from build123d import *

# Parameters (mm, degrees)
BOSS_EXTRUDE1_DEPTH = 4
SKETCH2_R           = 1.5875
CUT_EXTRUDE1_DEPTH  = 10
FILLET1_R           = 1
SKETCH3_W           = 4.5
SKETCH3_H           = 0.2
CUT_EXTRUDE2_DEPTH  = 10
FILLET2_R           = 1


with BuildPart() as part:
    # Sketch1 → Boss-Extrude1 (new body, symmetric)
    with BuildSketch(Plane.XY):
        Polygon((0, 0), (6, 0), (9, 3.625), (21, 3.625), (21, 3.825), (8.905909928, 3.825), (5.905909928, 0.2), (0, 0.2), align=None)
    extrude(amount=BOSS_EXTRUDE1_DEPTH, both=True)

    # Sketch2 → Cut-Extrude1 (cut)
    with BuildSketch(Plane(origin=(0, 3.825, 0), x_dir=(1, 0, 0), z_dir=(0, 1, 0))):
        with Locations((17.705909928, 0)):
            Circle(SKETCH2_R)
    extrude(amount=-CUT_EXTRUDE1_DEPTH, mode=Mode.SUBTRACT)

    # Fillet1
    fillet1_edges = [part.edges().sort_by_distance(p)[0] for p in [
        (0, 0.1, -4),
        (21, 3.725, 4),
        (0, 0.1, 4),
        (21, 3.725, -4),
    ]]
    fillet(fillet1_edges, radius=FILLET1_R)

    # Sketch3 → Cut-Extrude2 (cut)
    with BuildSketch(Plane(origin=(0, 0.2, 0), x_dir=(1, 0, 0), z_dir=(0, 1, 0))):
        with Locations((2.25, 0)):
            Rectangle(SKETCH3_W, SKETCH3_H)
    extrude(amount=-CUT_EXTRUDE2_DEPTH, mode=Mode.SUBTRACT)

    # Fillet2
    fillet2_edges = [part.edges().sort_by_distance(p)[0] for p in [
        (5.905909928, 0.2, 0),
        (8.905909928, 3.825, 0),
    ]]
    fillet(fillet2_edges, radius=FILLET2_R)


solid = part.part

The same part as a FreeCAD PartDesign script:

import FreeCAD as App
import Part
import Sketcher
Q = App.Units.Quantity


def edges_at(feature, points):
    """Names of the edges that pass closest to the given points."""
    edges = feature.Shape.Edges
    near = lambda p: min(range(len(edges)), key=lambda i: edges[i].distToShape(Part.Vertex(*p))[0])
    return sorted({f"Edge{near(p) + 1}" for p in points})


def add_polygon(sketch, points):
    """Adds a closed chain of lines whose ends are joined by coincident constraints."""
    first, n = sketch.GeometryCount, len(points)
    for a, b in zip(points, points[1:] + points[:1]):
        sketch.addGeometry(Part.LineSegment(App.Vector(*a, 0), App.Vector(*b, 0)), False)
    for i in range(n):
        sketch.addConstraint(Sketcher.Constraint("Coincident", first + i, 2, first + (i + 1) % n, 1))

doc = App.newDocument("Part")
body = doc.addObject("PartDesign::Body", "Body")

# Sketch on XY plane
sketch1 = doc.addObject("Sketcher::SketchObject", "Sketch")
body.addObject(sketch1)
sketch1.AttachmentSupport = (doc.XY_Plane, [""])
sketch1.MapMode = "FlatFace"
add_polygon(sketch1, [(0, 0), (6, 0), (9, 3.62), (21, 3.62), (21, 3.83), (8.91, 3.83), (5.91, 0.2), (0, 0.2)])  # lines 0-7
sketch1.addConstraint([
    Sketcher.Constraint("Horizontal", 0),
    Sketcher.Constraint("Horizontal", 2),
    Sketcher.Constraint("Vertical", 3),
    Sketcher.Constraint("Horizontal", 4),
    Sketcher.Constraint("Horizontal", 6),
    Sketcher.Constraint("Vertical", 7),
    Sketcher.Constraint("Coincident", 7, 2, -1, 1),
    Sketcher.Constraint("Parallel", 1, 5),
    Sketcher.Constraint("Equal", 3, 7),
    Sketcher.Constraint("DistanceX", 0, 1, 0, 2, Q("6 mm")),
    Sketcher.Constraint("DistanceX", 2, 1, 2, 2, Q("12 mm")),
    Sketcher.Constraint("DistanceY", 3, 1, 3, 2, Q("0.2 mm")),
    Sketcher.Constraint("DistanceX", -1, 1, 1, 2, Q("9 mm")),
    Sketcher.Constraint("DistanceY", -1, 1, 1, 2, Q("3.625 mm")),
    Sketcher.Constraint("DistanceX", 4, 2, 4, 1, Q("12.09409 mm")),
])
pad1 = doc.addObject("PartDesign::Pad", "Pad")
body.addObject(pad1)
pad1.Profile = sketch1
pad1.Length = 8
pad1.Midplane = True

# Sketch on XZ plane
sketch2 = doc.addObject("Sketcher::SketchObject", "Sketch001")
body.addObject(sketch2)
sketch2.AttachmentSupport = (doc.XZ_Plane, [""])
sketch2.MapMode = "FlatFace"
sketch2.AttachmentOffset = App.Placement(App.Vector(0, 0, -3.825), App.Rotation())
sketch2.addGeometry(Part.Circle(App.Vector(17.7, 0, 0), App.Vector(0, 0, 1), 1.6), False)
sketch2.addConstraint([
    Sketcher.Constraint("PointOnObject", 0, 3, -1),
    Sketcher.Constraint("Diameter", 0, Q("3.175 mm")),
    Sketcher.Constraint("DistanceX", -1, 1, 0, 3, Q("17.70591 mm")),
])
pocket1 = doc.addObject("PartDesign::Pocket", "Pocket")
body.addObject(pocket1)
pocket1.Profile = sketch2
pocket1.Length = 10
pocket1.Reversed = True
doc.recompute()

fillet = doc.addObject("PartDesign::Fillet", "Fillet")
body.addObject(fillet)
fillet.Base = (pocket1, edges_at(pocket1, [
    (0, 0.1, -4),
    (21, 3.725, 4),
    (0, 0.1, 4),
    (21, 3.725, -4),
]))
fillet.Radius = 1

# Sketch on XZ plane
sketch3 = doc.addObject("Sketcher::SketchObject", "Sketch002")
body.addObject(sketch3)
sketch3.AttachmentSupport = (doc.XZ_Plane, [""])
sketch3.MapMode = "FlatFace"
sketch3.AttachmentOffset = App.Placement(App.Vector(0, 0, -0.2), App.Rotation())
add_polygon(sketch3, [(0, -0.1), (0, 0.1), (4.5, 0.1), (4.5, -0.1)])  # lines 0-3
sketch3.addConstraint([
    Sketcher.Constraint("Vertical", 0),
    Sketcher.Constraint("Horizontal", 1),
    Sketcher.Constraint("Vertical", 2),
    Sketcher.Constraint("Horizontal", 3),
    Sketcher.Constraint("Symmetric", 0, 2, 3, 2, -1, 1),
    Sketcher.Constraint("DistanceX", 1, 1, 1, 2, Q("4.5 mm")),
    Sketcher.Constraint("DistanceY", 0, 1, 0, 2, Q("0.2 mm")),
])
pocket2 = doc.addObject("PartDesign::Pocket", "Pocket001")
body.addObject(pocket2)
pocket2.Profile = sketch3
pocket2.Length = 10
pocket2.Reversed = True
doc.recompute()

fillet2 = doc.addObject("PartDesign::Fillet", "Fillet001")
body.addObject(fillet2)
fillet2.Base = (pocket2, edges_at(pocket2, [(5.906, 0.2, 0), (8.906, 3.825, 0)]))
fillet2.Radius = 1

doc.recompute()
